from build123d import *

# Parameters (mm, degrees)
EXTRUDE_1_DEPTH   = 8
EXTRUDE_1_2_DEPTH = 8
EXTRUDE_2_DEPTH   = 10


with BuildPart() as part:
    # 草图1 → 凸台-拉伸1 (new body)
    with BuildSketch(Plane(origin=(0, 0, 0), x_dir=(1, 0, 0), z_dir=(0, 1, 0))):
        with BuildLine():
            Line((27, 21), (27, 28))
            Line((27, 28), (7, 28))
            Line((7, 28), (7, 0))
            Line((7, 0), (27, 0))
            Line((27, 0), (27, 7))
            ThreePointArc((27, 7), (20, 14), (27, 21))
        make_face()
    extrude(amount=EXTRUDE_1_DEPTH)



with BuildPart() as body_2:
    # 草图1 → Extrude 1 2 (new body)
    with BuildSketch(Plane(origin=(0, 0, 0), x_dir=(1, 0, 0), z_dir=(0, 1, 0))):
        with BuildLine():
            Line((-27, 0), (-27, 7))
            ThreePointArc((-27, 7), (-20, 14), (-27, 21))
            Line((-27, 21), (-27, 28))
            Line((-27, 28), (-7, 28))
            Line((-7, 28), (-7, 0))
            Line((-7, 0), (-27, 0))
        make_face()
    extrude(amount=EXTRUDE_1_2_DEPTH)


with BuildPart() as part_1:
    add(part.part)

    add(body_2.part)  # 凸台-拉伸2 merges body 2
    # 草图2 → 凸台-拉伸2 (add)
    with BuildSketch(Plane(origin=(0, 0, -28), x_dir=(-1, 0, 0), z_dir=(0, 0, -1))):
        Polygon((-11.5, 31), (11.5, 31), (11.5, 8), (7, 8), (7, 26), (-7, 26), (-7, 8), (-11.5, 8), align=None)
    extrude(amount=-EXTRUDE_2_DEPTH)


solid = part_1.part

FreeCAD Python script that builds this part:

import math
import FreeCAD as App
import Part
import Sketcher
from FreeCAD import Vector

doc = App.newDocument("Part")
body = doc.addObject("PartDesign::Body", "Body")

sketch1 = body.newObject("Sketcher::SketchObject", "Sketch")
sketch1.AttachmentSupport = (doc.getObject("XZ_Plane"), [""])
sketch1.MapMode = "FlatFace"
sketch1.addGeometry(Part.LineSegment(Vector(27, -21, 0), Vector(27, -28, 0)), False)
sketch1.addGeometry(Part.LineSegment(Vector(27, -28, 0), Vector(7, -28, 0)), False)
sketch1.addGeometry(Part.LineSegment(Vector(7, -28, 0), Vector(7, 0, 0)), False)
sketch1.addGeometry(Part.LineSegment(Vector(7, 0, 0), Vector(27, 0, 0)), False)
sketch1.addGeometry(Part.LineSegment(Vector(27, 0, 0), Vector(27, -7, 0)), False)
sketch1.addGeometry(Part.ArcOfCircle(Part.Circle(Vector(27, -14, 0), Vector(0, 0, 1), 7), math.radians(90), math.radians(270)), False)
sketch1.addConstraint(Sketcher.Constraint("Coincident", 0, 2, 1, 1))
sketch1.addConstraint(Sketcher.Constraint("Coincident", 1, 2, 2, 1))
sketch1.addConstraint(Sketcher.Constraint("Coincident", 2, 2, 3, 1))
sketch1.addConstraint(Sketcher.Constraint("Coincident", 3, 2, 4, 1))
sketch1.addConstraint(Sketcher.Constraint("Coincident", 4, 2, 5, 1))
sketch1.addConstraint(Sketcher.Constraint("Coincident", 5, 2, 0, 1))
sketch1.addConstraint(Sketcher.Constraint("Vertical", 0))
sketch1.addConstraint(Sketcher.Constraint("Horizontal", 1))
sketch1.addConstraint(Sketcher.Constraint("Vertical", 2))
sketch1.addConstraint(Sketcher.Constraint("Horizontal", 3))
sketch1.addConstraint(Sketcher.Constraint("Vertical", 4))
sketch1.addConstraint(Sketcher.Constraint("PointOnObject", 2, 2, -1))
sketch1.addConstraint(Sketcher.Constraint("Vertical", 5, 3, 0, 2))
sketch1.addConstraint(Sketcher.Constraint("Vertical", 0, 2, 3, 2))
sketch1.addConstraint(Sketcher.Constraint("Equal", 0, 4))
sketch1.addConstraint(Sketcher.Constraint("Radius", 5, 7.0))
sketch1.addConstraint(Sketcher.Constraint("DistanceX", 1, 2, 1, 1, 20.0))
sketch1.addConstraint(Sketcher.Constraint("DistanceY", 0, 2, 0, 1, 7.0))
sketch1.addConstraint(Sketcher.Constraint("DistanceX", -1, 1, 5, 3, 27.0))
pad1 = body.newObject("PartDesign::Pad", "Pad")
pad1.Profile = sketch1
pad1.Length = 8
pad1.Reversed = True
body2 = doc.addObject("PartDesign::Body", "Body001")

sketch2 = body2.newObject("Sketcher::SketchObject", "Sketch001")
sketch2.AttachmentSupport = (doc.getObject("XZ_Plane001"), [""])
sketch2.MapMode = "FlatFace"
sketch2.addGeometry(Part.LineSegment(Vector(-27, -7, 0), Vector(-27, 0, 0)), False)
sketch2.addGeometry(Part.LineSegment(Vector(-27, 0, 0), Vector(-7, 0, 0)), False)
sketch2.addGeometry(Part.LineSegment(Vector(-7, 0, 0), Vector(-7, -28, 0)), False)
sketch2.addGeometry(Part.LineSegment(Vector(-7, -28, 0), Vector(-27, -28, 0)), False)
sketch2.addGeometry(Part.LineSegment(Vector(-27, -28, 0), Vector(-27, -21, 0)), False)
sketch2.addGeometry(Part.ArcOfCircle(Part.Circle(Vector(-27, -14, 0), Vector(0, 0, 1), 7), math.radians(-90), math.radians(90)), False)
sketch2.addConstraint(Sketcher.Constraint("Coincident", 0, 2, 1, 1))
sketch2.addConstraint(Sketcher.Constraint("Coincident", 1, 2, 2, 1))
sketch2.addConstraint(Sketcher.Constraint("Coincident", 2, 2, 3, 1))
sketch2.addConstraint(Sketcher.Constraint("Coincident", 3, 2, 4, 1))
sketch2.addConstraint(Sketcher.Constraint("Coincident", 4, 2, 5, 1))
sketch2.addConstraint(Sketcher.Constraint("Coincident", 5, 2, 0, 1))
sketch2.addConstraint(Sketcher.Constraint("Vertical", 0))
sketch2.addConstraint(Sketcher.Constraint("Horizontal", 1))
sketch2.addConstraint(Sketcher.Constraint("Vertical", 2))
sketch2.addConstraint(Sketcher.Constraint("Horizontal", 3))
sketch2.addConstraint(Sketcher.Constraint("Vertical", 4))
sketch2.addConstraint(Sketcher.Constraint("PointOnObject", 0, 2, -1))
sketch2.addConstraint(Sketcher.Constraint("Vertical", 5, 3, 0, 2))
sketch2.addConstraint(Sketcher.Constraint("Vertical", 0, 2, 3, 2))
sketch2.addConstraint(Sketcher.Constraint("Equal", 0, 4))
sketch2.addConstraint(Sketcher.Constraint("Radius", 5, 7.0))
sketch2.addConstraint(Sketcher.Constraint("DistanceX", 1, 1, 1, 2, 20.0))
sketch2.addConstraint(Sketcher.Constraint("DistanceY", 0, 1, 0, 2, 7.0))
sketch2.addConstraint(Sketcher.Constraint("DistanceX", 5, 3, -1, 1, 27.0))
pad2 = body2.newObject("PartDesign::Pad", "Pad001")
pad2.Profile = sketch2
pad2.Length = 8
pad2.Reversed = True
body.AllowCompound = True
doc.recompute()

boolean = body.newObject("PartDesign::Boolean", "Boolean")
boolean.Type = "Fuse"
boolean.addObjects([body2])

sketch3 = body.newObject("Sketcher::SketchObject", "Sketch002")
sketch3.AttachmentSupport = (doc.getObject("XY_Plane"), [""])
sketch3.MapMode = "FlatFace"
sketch3.AttachmentOffset = App.Placement(Vector(0, 0, -28), App.Rotation())
sketch3.addGeometry(Part.LineSegment(Vector(-11.5, 31, 0), Vector(11.5, 31, 0)), False)
sketch3.addGeometry(Part.LineSegment(Vector(11.5, 31, 0), Vector(11.5, 8, 0)), False)
sketch3.addGeometry(Part.LineSegment(Vector(11.5, 8, 0), Vector(7, 8, 0)), False)
sketch3.addGeometry(Part.LineSegment(Vector(7, 8, 0), Vector(7, 26, 0)), False)
sketch3.addGeometry(Part.LineSegment(Vector(7, 26, 0), Vector(-7, 26, 0)), False)
sketch3.addGeometry(Part.LineSegment(Vector(-7, 26, 0), Vector(-7, 8, 0)), False)
sketch3.addGeometry(Part.LineSegment(Vector(-7, 8, 0), Vector(-11.5, 8, 0)), False)
sketch3.addGeometry(Part.LineSegment(Vector(-11.5, 8, 0), Vector(-11.5, 31, 0)), False)
sketch3.addConstraint(Sketcher.Constraint("Coincident", 0, 2, 1, 1))
sketch3.addConstraint(Sketcher.Constraint("Coincident", 1, 2, 2, 1))
sketch3.addConstraint(Sketcher.Constraint("Coincident", 2, 2, 3, 1))
sketch3.addConstraint(Sketcher.Constraint("Coincident", 3, 2, 4, 1))
sketch3.addConstraint(Sketcher.Constraint("Coincident", 4, 2, 5, 1))
sketch3.addConstraint(Sketcher.Constraint("Coincident", 5, 2, 6, 1))
sketch3.addConstraint(Sketcher.Constraint("Coincident", 6, 2, 7, 1))
sketch3.addConstraint(Sketcher.Constraint("Coincident", 7, 2, 0, 1))
sketch3.addConstraint(Sketcher.Constraint("Horizontal", 0))
sketch3.addConstraint(Sketcher.Constraint("Vertical", 1))
sketch3.addConstraint(Sketcher.Constraint("Horizontal", 2))
sketch3.addConstraint(Sketcher.Constraint("Vertical", 3))
sketch3.addConstraint(Sketcher.Constraint("Horizontal", 4))
sketch3.addConstraint(Sketcher.Constraint("Vertical", 5))
sketch3.addConstraint(Sketcher.Constraint("Horizontal", 6))
sketch3.addConstraint(Sketcher.Constraint("Vertical", 7))
sketch3.addConstraint(Sketcher.Constraint("Symmetric", 2, 2, 5, 2, -2))
sketch3.addConstraint(Sketcher.Constraint("Equal", 2, 6))
sketch3.addConstraint(Sketcher.Constraint("Equal", 0, 1))
sketch3.addConstraint(Sketcher.Constraint("DistanceX", 0, 1, 0, 2, 23.0))
sketch3.addConstraint(Sketcher.Constraint("DistanceX", 4, 2, 4, 1, 14.0))
sketch3.addConstraint(Sketcher.Constraint("DistanceY", 3, 1, 3, 2, 18.0))
sketch3.addConstraint(Sketcher.Constraint("DistanceY", -1, 1, 0, 2, 31.0))
pad3 = body.newObject("PartDesign::Pad", "Pad002")
pad3.Profile = sketch3
pad3.Length = 10

doc.recompute()
